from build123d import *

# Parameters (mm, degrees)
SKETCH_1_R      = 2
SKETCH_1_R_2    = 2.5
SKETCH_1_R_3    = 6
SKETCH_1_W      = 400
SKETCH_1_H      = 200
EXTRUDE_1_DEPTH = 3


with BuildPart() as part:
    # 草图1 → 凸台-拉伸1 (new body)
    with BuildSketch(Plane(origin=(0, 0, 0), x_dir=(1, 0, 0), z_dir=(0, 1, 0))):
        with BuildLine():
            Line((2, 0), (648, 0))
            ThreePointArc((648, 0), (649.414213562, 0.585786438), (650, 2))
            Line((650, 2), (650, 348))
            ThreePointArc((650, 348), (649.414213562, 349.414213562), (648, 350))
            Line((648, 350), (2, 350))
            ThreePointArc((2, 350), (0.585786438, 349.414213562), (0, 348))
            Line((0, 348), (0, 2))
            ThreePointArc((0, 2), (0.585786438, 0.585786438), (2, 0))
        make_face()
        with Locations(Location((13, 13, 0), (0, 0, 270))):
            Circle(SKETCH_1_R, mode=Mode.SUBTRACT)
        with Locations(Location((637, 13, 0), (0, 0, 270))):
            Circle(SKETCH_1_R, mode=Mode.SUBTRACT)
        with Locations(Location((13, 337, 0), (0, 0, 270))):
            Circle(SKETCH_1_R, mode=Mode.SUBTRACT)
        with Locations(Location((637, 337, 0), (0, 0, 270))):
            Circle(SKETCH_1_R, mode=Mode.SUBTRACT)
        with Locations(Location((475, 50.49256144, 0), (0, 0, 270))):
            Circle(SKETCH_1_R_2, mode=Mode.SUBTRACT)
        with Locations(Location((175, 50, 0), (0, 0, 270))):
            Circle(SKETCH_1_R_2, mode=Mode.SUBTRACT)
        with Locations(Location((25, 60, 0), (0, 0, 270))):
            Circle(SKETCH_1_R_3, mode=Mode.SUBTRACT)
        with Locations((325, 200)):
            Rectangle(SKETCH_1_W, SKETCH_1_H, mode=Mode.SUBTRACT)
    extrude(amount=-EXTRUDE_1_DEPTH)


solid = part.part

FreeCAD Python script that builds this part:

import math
import FreeCAD as App
import Part
import Sketcher


def add_polygon(sketch, points):
    """Adds a closed chain of lines whose ends are joined by coincident constraints."""
    first, n = sketch.GeometryCount, len(points)
    for a, b in zip(points, points[1:] + points[:1]):
        sketch.addGeometry(Part.LineSegment(App.Vector(*a, 0), App.Vector(*b, 0)), False)
    for i in range(n):
        sketch.addConstraint(Sketcher.Constraint("Coincident", first + i, 2, first + (i + 1) % n, 1))

doc = App.newDocument("Part")
body = doc.addObject("PartDesign::Body", "Body")

sketch1 = body.newObject("Sketcher::SketchObject", "Sketch")
sketch1.AttachmentSupport = (doc.getObject("XZ_Plane"), [""])
sketch1.MapMode = "FlatFace"
sketch1.addGeometry(Part.LineSegment(App.Vector(2, 0, 0), App.Vector(648, 0, 0)), False)
sketch1.addGeometry(Part.ArcOfCircle(Part.Circle(App.Vector(648, -2, 0), App.Vector(0, 0, 1), 2), math.radians(0), math.radians(90)), False)
sketch1.addGeometry(Part.LineSegment(App.Vector(650, -2, 0), App.Vector(650, -348, 0)), False)
sketch1.addGeometry(Part.ArcOfCircle(Part.Circle(App.Vector(648, -348, 0), App.Vector(0, 0, 1), 2), math.radians(-90), math.radians(0)), False)
sketch1.addGeometry(Part.LineSegment(App.Vector(648, -350, 0), App.Vector(2, -350, 0)), False)
sketch1.addGeometry(Part.ArcOfCircle(Part.Circle(App.Vector(2, -348, 0), App.Vector(0, 0, 1), 2), math.radians(-180), math.radians(-90)), False)
sketch1.addGeometry(Part.LineSegment(App.Vector(0, -348, 0), App.Vector(0, -2, 0)), False)
sketch1.addGeometry(Part.ArcOfCircle(Part.Circle(App.Vector(2, -2, 0), App.Vector(0, 0, 1), 2), math.radians(90), math.radians(180)), False)
sketch1.addGeometry(Part.Circle(App.Vector(13, -13, 0), App.Vector(0, 0, 1), 2), False)
sketch1.addGeometry(Part.Circle(App.Vector(25, -60, 0), App.Vector(0, 0, 1), 6), False)
sketch1.addGeometry(Part.Circle(App.Vector(175, -50, 0), App.Vector(0, 0, 1), 2.5), False)
sketch1.addGeometry(Part.Circle(App.Vector(475, -50.492561, 0), App.Vector(0, 0, 1), 2.5), False)
sketch1.addGeometry(Part.Circle(App.Vector(637, -13, 0), App.Vector(0, 0, 1), 2), False)
sketch1.addGeometry(Part.Circle(App.Vector(13, -337, 0), App.Vector(0, 0, 1), 2), False)
add_polygon(sketch1, [(525, -100), (125, -100), (125, -300), (525, -300)])
sketch1.addGeometry(Part.Circle(App.Vector(637, -337, 0), App.Vector(0, 0, 1), 2), False)
sketch1.addConstraint([
    Sketcher.Constraint("Tangent", 0, 2, 1, 2),
    Sketcher.Constraint("Tangent", 1, 1, 2, 1),
    Sketcher.Constraint("Tangent", 2, 2, 3, 2),
    Sketcher.Constraint("Tangent", 3, 1, 4, 1),
    Sketcher.Constraint("Tangent", 4, 2, 5, 2),
    Sketcher.Constraint("Tangent", 5, 1, 6, 1),
    Sketcher.Constraint("Tangent", 6, 2, 7, 2),
    Sketcher.Constraint("Tangent", 7, 1, 0, 1),
    Sketcher.Constraint("Horizontal", 0),
    Sketcher.Constraint("Vertical", 2),
    Sketcher.Constraint("Horizontal", 4),
    Sketcher.Constraint("Vertical", 6),
    Sketcher.Constraint("Horizontal", 14),
    Sketcher.Constraint("Vertical", 15),
    Sketcher.Constraint("Horizontal", 16),
    Sketcher.Constraint("Vertical", 17),
    Sketcher.Constraint("Equal", 1, 3),
    Sketcher.Constraint("Equal", 3, 5),
    Sketcher.Constraint("Equal", 5, 7),
    Sketcher.Constraint("Equal", 7, 8),
    Sketcher.Constraint("Equal", 10, 11),
    Sketcher.Constraint("Equal", 8, 12),
    Sketcher.Constraint("Equal", 12, 13),
    Sketcher.Constraint("Equal", 13, 18),
    Sketcher.Constraint("PointOnObject", 0, 2, -1),
    Sketcher.Constraint("PointOnObject", 5, 1, -2),
    Sketcher.Constraint("Horizontal", 8, 3, 12, 3),
    Sketcher.Constraint("Horizontal", 13, 3, 18, 3),
    Sketcher.Constraint("Vertical", 8, 3, 13, 3),
    Sketcher.Constraint("Vertical", 12, 3, 18, 3),
    Sketcher.Constraint("Diameter", 8, 4.0),
    Sketcher.Constraint("Diameter", 9, 12.0),
    Sketcher.Constraint("Diameter", 10, 5.0),
    Sketcher.Constraint("DistanceX", 0, 1, 0, 2, 646.0),
    Sketcher.Constraint("DistanceX", 14, 2, 14, 1, 400.0),
    Sketcher.Constraint("DistanceY", 2, 2, 2, 1, 346.0),
    Sketcher.Constraint("DistanceY", 15, 2, 15, 1, 200.0),
    Sketcher.Constraint("DistanceX", -1, 1, 8, 3, 13.0),
    Sketcher.Constraint("DistanceY", 8, 3, -1, 1, 13.0),
    Sketcher.Constraint("DistanceX", -1, 1, 9, 3, 25.0),
    Sketcher.Constraint("DistanceY", 9, 3, -1, 1, 60.0),
    Sketcher.Constraint("DistanceX", -1, 1, 10, 3, 175.0),
    Sketcher.Constraint("DistanceY", 10, 3, -1, 1, 50.0),
    Sketcher.Constraint("DistanceX", -1, 1, 11, 3, 475.0),
    Sketcher.Constraint("DistanceX", -1, 1, 12, 3, 637.0),
    Sketcher.Constraint("DistanceY", 13, 3, -1, 1, 337.0),
    Sketcher.Constraint("DistanceX", -1, 1, 14, 2, 125.0),
    Sketcher.Constraint("DistanceY", 14, 2, -1, 1, 100.0),
    Sketcher.Constraint("DistanceY", 11, 3, -1, 1, 50.492561),
])
pad1 = body.newObject("PartDesign::Pad", "Pad")
pad1.Profile = sketch1
pad1.Length = 3

doc.recompute()
